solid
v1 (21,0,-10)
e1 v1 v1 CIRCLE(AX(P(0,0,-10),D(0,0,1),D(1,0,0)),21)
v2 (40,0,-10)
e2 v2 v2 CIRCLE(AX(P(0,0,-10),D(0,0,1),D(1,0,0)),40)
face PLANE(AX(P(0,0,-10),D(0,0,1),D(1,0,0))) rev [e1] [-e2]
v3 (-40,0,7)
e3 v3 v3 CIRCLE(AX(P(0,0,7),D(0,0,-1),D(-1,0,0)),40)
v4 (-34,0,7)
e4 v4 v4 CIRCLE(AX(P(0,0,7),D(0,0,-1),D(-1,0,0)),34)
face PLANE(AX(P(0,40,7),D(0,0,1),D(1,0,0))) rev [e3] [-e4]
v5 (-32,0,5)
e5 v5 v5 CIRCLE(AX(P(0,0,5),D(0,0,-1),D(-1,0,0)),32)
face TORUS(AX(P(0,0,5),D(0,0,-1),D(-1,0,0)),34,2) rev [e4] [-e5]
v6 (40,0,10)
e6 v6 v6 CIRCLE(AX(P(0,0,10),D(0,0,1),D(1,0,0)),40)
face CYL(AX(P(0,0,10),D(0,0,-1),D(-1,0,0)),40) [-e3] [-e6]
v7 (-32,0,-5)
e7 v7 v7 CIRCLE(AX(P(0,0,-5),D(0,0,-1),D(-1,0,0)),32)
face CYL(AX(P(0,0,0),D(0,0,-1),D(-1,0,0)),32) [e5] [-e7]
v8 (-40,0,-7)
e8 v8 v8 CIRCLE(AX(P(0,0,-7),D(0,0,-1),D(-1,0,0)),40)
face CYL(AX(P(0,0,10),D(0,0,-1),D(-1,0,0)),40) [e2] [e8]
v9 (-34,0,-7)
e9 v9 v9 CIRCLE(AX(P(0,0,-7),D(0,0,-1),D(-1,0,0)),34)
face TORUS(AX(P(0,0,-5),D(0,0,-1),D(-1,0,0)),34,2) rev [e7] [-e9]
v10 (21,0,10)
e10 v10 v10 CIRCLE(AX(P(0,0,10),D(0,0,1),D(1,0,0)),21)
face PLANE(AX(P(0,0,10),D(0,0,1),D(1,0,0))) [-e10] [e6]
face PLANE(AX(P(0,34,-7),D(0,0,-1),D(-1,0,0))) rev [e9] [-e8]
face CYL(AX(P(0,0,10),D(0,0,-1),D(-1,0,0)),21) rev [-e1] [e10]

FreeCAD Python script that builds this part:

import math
import FreeCAD as App
import Part
import Sketcher
from FreeCAD import Vector

doc = App.newDocument("Part")
params = doc.addObject("Spreadsheet::Sheet", "Params")
for row, (alias, value) in enumerate([
    ("sketch1_diameter", "80 mm"),
    ("sketch1_diameter2", "42 mm"),
    ("pad1_length", "20 mm"),
    ("sketch2_radius", "2 mm"),
    ("sketch2_width", "6 mm"),
    ("sketch2_height", "10 mm"),
    ("groove_angle", "360 deg"),
], start=1):
    params.set(f"A{row}", alias)
    params.set(f"B{row}", "=" + value)
    params.setAlias(f"B{row}", alias)

body = doc.addObject("PartDesign::Body", "Body")

# Sketch on XY plane
sketch1 = body.newObject("Sketcher::SketchObject", "Sketch")
sketch1.AttachmentSupport = (doc.getObject("XY_Plane"), [""])
sketch1.MapMode = "FlatFace"
sketch1.addGeometry(Part.Circle(Vector(0, 0, 0), Vector(0, 0, 1), 40), False)
sketch1.addGeometry(Part.Circle(Vector(0, 0, 0), Vector(0, 0, 1), 21), False)
sketch1.addConstraint(Sketcher.Constraint("Coincident", 0, 3, -1, 1))
sketch1.addConstraint(Sketcher.Constraint("Coincident", 1, 3, -1, 1))
sketch1.addConstraint(Sketcher.Constraint("Diameter", 0, 80.0))
sketch1.addConstraint(Sketcher.Constraint("Diameter", 1, 42.0))
sketch1.setExpression("Constraints[2]", "Params.sketch1_diameter")
sketch1.setExpression("Constraints[3]", "Params.sketch1_diameter2")
pad1 = body.newObject("PartDesign::Pad", "Pad")
pad1.Profile = sketch1
pad1.setExpression("Length", "Params.pad1_length")
pad1.Midplane = True

# Sketch on YZ plane
sketch2 = body.newObject("Sketcher::SketchObject", "Sketch001")
sketch2.AttachmentSupport = (doc.getObject("YZ_Plane"), [""])
sketch2.MapMode = "FlatFace"
sketch2.addGeometry(Part.LineSegment(Vector(40, 7, 0), Vector(34, 7, 0)), False)
sketch2.addGeometry(Part.ArcOfCircle(Part.Circle(Vector(34, 5, 0), Vector(0, 0, 1), 2), math.radians(90), math.radians(180)), False)
sketch2.addGeometry(Part.LineSegment(Vector(32, 5, 0), Vector(32, -5, 0)), False)
sketch2.addGeometry(Part.ArcOfCircle(Part.Circle(Vector(34, -5, 0), Vector(0, 0, 1), 2), math.radians(-180), math.radians(-90)), False)
sketch2.addGeometry(Part.LineSegment(Vector(34, -7, 0), Vector(40, -7, 0)), False)
sketch2.addGeometry(Part.LineSegment(Vector(40, -7, 0), Vector(40, 7, 0)), False)
sketch2.addConstraint(Sketcher.Constraint("Tangent", 0, 2, 1, 1))
sketch2.addConstraint(Sketcher.Constraint("Tangent", 1, 2, 2, 1))
sketch2.addConstraint(Sketcher.Constraint("Tangent", 2, 2, 3, 1))
sketch2.addConstraint(Sketcher.Constraint("Tangent", 3, 2, 4, 1))
sketch2.addConstraint(Sketcher.Constraint("Coincident", 4, 2, 5, 1))
sketch2.addConstraint(Sketcher.Constraint("Coincident", 5, 2, 0, 1))
sketch2.addConstraint(Sketcher.Constraint("Horizontal", 0))
sketch2.addConstraint(Sketcher.Constraint("Vertical", 2))
sketch2.addConstraint(Sketcher.Constraint("Horizontal", 4))
sketch2.addConstraint(Sketcher.Constraint("Vertical", 5))
sketch2.addConstraint(Sketcher.Constraint("Equal", 1, 3))
sketch2.addConstraint(Sketcher.Constraint("Radius", 1, 2.0))
sketch2.addConstraint(Sketcher.Constraint("DistanceX", 0, 2, 0, 1, 6.0))
sketch2.addConstraint(Sketcher.Constraint("DistanceY", 2, 2, 2, 1, 10.0))
sketch2.addConstraint(Sketcher.Constraint("DistanceX", -1, 1, 1, 3, 34.0))
sketch2.addConstraint(Sketcher.Constraint("DistanceY", -1, 1, 1, 3, 5.0))
sketch2.setExpression("Constraints[11]", "Params.sketch2_radius")
sketch2.setExpression("Constraints[12]", "Params.sketch2_width")
sketch2.setExpression("Constraints[13]", "Params.sketch2_height")
groove = body.newObject("PartDesign::Groove", "Groove")
groove.Profile = sketch2
groove.ReferenceAxis = (sketch2, ["V_Axis"])
groove.setExpression("Angle", "Params.groove_angle")

doc.recompute()
